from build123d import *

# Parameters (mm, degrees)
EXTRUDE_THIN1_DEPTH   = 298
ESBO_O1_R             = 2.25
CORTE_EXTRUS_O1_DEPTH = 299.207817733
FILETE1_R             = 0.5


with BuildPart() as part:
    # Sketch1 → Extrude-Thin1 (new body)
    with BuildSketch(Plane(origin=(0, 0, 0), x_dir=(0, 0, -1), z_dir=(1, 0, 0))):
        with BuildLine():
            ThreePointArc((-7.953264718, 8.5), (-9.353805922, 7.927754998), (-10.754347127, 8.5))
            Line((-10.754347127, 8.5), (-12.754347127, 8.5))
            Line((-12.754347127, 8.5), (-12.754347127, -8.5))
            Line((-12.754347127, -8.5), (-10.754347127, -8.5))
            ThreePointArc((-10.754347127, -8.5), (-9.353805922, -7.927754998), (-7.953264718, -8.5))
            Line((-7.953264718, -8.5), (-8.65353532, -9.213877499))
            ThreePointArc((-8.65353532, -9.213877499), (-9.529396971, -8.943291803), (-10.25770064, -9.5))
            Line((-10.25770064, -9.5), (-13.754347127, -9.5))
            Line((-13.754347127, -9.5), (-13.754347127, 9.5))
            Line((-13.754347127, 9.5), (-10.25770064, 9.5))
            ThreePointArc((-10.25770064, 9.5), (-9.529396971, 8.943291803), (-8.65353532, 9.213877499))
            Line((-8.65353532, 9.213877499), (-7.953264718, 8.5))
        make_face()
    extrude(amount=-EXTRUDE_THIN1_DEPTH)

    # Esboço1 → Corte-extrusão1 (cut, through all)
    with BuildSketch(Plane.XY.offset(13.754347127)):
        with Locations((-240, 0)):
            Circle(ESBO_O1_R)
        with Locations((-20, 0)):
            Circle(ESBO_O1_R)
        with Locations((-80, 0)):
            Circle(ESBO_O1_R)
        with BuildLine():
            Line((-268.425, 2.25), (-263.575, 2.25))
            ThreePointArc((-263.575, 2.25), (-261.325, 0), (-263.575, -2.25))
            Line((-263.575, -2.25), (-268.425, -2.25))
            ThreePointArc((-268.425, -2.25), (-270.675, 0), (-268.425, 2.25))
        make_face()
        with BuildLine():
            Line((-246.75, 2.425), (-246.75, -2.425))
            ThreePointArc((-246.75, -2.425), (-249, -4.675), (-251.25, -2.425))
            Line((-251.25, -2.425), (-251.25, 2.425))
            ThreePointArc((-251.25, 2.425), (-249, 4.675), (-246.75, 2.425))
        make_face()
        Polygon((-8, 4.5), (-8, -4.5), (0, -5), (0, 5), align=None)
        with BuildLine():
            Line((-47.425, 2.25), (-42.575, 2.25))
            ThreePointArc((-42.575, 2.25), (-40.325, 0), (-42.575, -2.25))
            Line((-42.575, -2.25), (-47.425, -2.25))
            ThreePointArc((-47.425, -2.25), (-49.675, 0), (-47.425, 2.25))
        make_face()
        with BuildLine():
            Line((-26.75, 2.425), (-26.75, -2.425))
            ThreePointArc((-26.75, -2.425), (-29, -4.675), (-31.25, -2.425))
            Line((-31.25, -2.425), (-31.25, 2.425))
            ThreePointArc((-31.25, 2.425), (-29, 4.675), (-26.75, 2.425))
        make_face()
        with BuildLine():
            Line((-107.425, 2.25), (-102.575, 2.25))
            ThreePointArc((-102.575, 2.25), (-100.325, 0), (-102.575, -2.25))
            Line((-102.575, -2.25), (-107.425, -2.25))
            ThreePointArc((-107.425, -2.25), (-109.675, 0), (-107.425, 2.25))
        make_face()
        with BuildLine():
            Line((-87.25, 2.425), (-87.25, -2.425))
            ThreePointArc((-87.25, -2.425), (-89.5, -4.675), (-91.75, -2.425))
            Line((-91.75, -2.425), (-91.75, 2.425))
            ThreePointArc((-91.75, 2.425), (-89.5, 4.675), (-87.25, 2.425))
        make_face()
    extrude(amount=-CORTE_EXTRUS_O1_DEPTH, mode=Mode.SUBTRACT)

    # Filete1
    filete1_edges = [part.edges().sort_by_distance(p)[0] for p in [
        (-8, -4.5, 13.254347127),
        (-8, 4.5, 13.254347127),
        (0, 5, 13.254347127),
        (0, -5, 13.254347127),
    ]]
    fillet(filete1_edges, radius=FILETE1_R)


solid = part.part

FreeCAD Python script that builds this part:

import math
import FreeCAD as App
import Part
import Sketcher
from FreeCAD import Vector
Q = App.Units.Quantity


def edges_at(feature, points):
    """Names of the edges that pass closest to the given points."""
    edges = feature.Shape.Edges
    near = lambda p: min(range(len(edges)), key=lambda i: edges[i].distToShape(Part.Vertex(*p))[0])
    return sorted({f"Edge{near(p) + 1}" for p in points})


def add_polygon(sketch, points):
    """Adds a closed chain of lines whose ends are joined by coincident constraints."""
    first, n = sketch.GeometryCount, len(points)
    for a, b in zip(points, points[1:] + points[:1]):
        sketch.addGeometry(Part.LineSegment(App.Vector(*a, 0), App.Vector(*b, 0)), False)
    for i in range(n):
        sketch.addConstraint(Sketcher.Constraint("Coincident", first + i, 2, first + (i + 1) % n, 1))

doc = App.newDocument("Part")
body = doc.addObject("PartDesign::Body", "Body")

# Sketch on YZ plane
sketch1 = body.newObject("Sketcher::SketchObject", "Sketch")
sketch1.AttachmentSupport = (doc.getObject("YZ_Plane"), [""])
sketch1.MapMode = "FlatFace"
sketch1.addGeometry([
    Part.ArcOfCircle(Part.Circle(Vector(9.927755, 9.353806, 0), Vector(0, 0, 1), 2), math.radians(135.551282), math.radians(224.448719)),  # 0
    Part.LineSegment(Vector(8.5, 7.953265, 0), Vector(9.213877, 8.653535, 0)),  # 1
    Part.ArcOfCircle(Part.Circle(Vector(9.927755, 9.353806, 0), Vector(0, 0, 1), 1), math.radians(115.325171), math.radians(224.448718)),  # 2
    Part.LineSegment(Vector(9.5, 10.257701, 0), Vector(9.5, 13.754347, 0)),  # 3
    Part.LineSegment(Vector(9.5, 13.754347, 0), Vector(-9.5, 13.754347, 0)),  # 4
    Part.LineSegment(Vector(-9.5, 13.754347, 0), Vector(-9.5, 10.257701, 0)),  # 5
    Part.ArcOfCircle(Part.Circle(Vector(-9.927755, 9.353806, 0), Vector(0, 0, 1), 1), math.radians(-44.448718), math.radians(64.674829)),  # 6
    Part.LineSegment(Vector(-9.213877, 8.653535, 0), Vector(-8.5, 7.953265, 0)),  # 7
    Part.ArcOfCircle(Part.Circle(Vector(-9.927755, 9.353806, 0), Vector(0, 0, 1), 2), math.radians(-44.448719), math.radians(44.448718)),  # 8
    Part.LineSegment(Vector(-8.5, 10.754347, 0), Vector(-8.5, 12.754347, 0)),  # 9
    Part.LineSegment(Vector(-8.5, 12.754347, 0), Vector(8.5, 12.754347, 0)),  # 10
    Part.LineSegment(Vector(8.5, 12.754347, 0), Vector(8.5, 10.754347, 0)),  # 11
], False)
sketch1.addConstraint([
    Sketcher.Constraint("Coincident", 0, 2, 1, 1),
    Sketcher.Constraint("Coincident", 1, 2, 2, 2),
    Sketcher.Constraint("Coincident", 2, 1, 3, 1),
    Sketcher.Constraint("Coincident", 3, 2, 4, 1),
    Sketcher.Constraint("Coincident", 4, 2, 5, 1),
    Sketcher.Constraint("Coincident", 5, 2, 6, 2),
    Sketcher.Constraint("Coincident", 6, 1, 7, 1),
    Sketcher.Constraint("Coincident", 7, 2, 8, 1),
    Sketcher.Constraint("Coincident", 8, 2, 9, 1),
    Sketcher.Constraint("Coincident", 9, 2, 10, 1),
    Sketcher.Constraint("Coincident", 10, 2, 11, 1),
    Sketcher.Constraint("Coincident", 11, 2, 0, 1),
    Sketcher.Constraint("Vertical", 3),
    Sketcher.Constraint("Horizontal", 4),
    Sketcher.Constraint("Vertical", 5),
    Sketcher.Constraint("Vertical", 9),
    Sketcher.Constraint("Horizontal", 10),
    Sketcher.Constraint("Vertical", 11),
    Sketcher.Constraint("Coincident", 2, 3, 0, 3),
    Sketcher.Constraint("Coincident", 8, 3, 6, 3),
    Sketcher.Constraint("Equal", 2, 6),
    Sketcher.Constraint("Equal", 0, 8),
    Sketcher.Constraint("Symmetric", 0, 3, 6, 3, -2),
    Sketcher.Constraint("Horizontal", 2, 1, 5, 2),
    Sketcher.Constraint("Horizontal", 1, 2, 6, 1),
    Sketcher.Constraint("Horizontal", 0, 2, 7, 2),
    Sketcher.Constraint("Horizontal", 8, 2, 11, 2),
    Sketcher.Constraint("Vertical", 7, 2, 8, 2),
    Sketcher.Constraint("Radius", 0, Q("2 mm")),
    Sketcher.Constraint("Radius", 2, Q("1 mm")),
    Sketcher.Constraint("DistanceX", 4, 2, 4, 1, Q("19 mm")),
    Sketcher.Constraint("DistanceX", 10, 1, 10, 2, Q("17 mm")),
    Sketcher.Constraint("DistanceY", 9, 1, 9, 2, Q("2 mm")),
    Sketcher.Constraint("DistanceY", 9, 2, 4, 2, Q("1 mm")),
    Sketcher.Constraint("DistanceY", -1, 1, 2, 1, Q("10.257701 mm")),
    Sketcher.Constraint("DistanceY", 3, 1, 3, 2, Q("3.496646 mm")),
    Sketcher.Constraint("DistanceY", 0, 2, 1, 2, Q("0.700271 mm")),
])
pad1 = body.newObject("PartDesign::Pad", "Pad")
pad1.Profile = sketch1
pad1.Length = 298
pad1.Reversed = True

# Sketch on XY plane
sketch2 = body.newObject("Sketcher::SketchObject", "Sketch001")
sketch2.AttachmentSupport = (doc.getObject("XY_Plane"), [""])
sketch2.MapMode = "FlatFace"
sketch2.AttachmentOffset = App.Placement(Vector(0, 0, 13.754347), App.Rotation())
sketch2.addGeometry(Part.Circle(Vector(-240, 0, 0), Vector(0, 0, 1), 2.25), False)  # 0
sketch2.addGeometry(Part.Circle(Vector(-20, 0, 0), Vector(0, 0, 1), 2.25), False)  # 1
sketch2.addGeometry(Part.Circle(Vector(-80, 0, 0), Vector(0, 0, 1), 2.25), False)  # 2
sketch2.addGeometry(Part.LineSegment(Vector(-263.575, 2.25, 0), Vector(-268.425, 2.25, 0)), False)  # 3
sketch2.addGeometry(Part.ArcOfCircle(Part.Circle(Vector(-268.425, 0, 0), Vector(0, 0, 1), 2.25), math.radians(90), math.radians(270)), False)  # 4
sketch2.addGeometry(Part.LineSegment(Vector(-268.425, -2.25, 0), Vector(-263.575, -2.25, 0)), False)  # 5
sketch2.addGeometry(Part.ArcOfCircle(Part.Circle(Vector(-263.575, 0, 0), Vector(0, 0, 1), 2.25), math.radians(-90), math.radians(90)), False)  # 6
sketch2.addGeometry(Part.LineSegment(Vector(-246.75, -2.425, 0), Vector(-246.75, 2.425, 0)), False)  # 7
sketch2.addGeometry(Part.ArcOfCircle(Part.Circle(Vector(-249, 2.425, 0), Vector(0, 0, 1), 2.25), math.radians(0), math.radians(180)), False)  # 8
sketch2.addGeometry(Part.LineSegment(Vector(-251.25, 2.425, 0), Vector(-251.25, -2.425, 0)), False)  # 9
sketch2.addGeometry(Part.ArcOfCircle(Part.Circle(Vector(-249, -2.425, 0), Vector(0, 0, 1), 2.25), math.radians(180), math.radians(360)), False)  # 10
add_polygon(sketch2, [(-8, 4.5), (-8, -4.5), (0, -5), (0, 5)])  # lines 11-14
sketch2.addGeometry(Part.LineSegment(Vector(-42.575, 2.25, 0), Vector(-47.425, 2.25, 0)), False)  # 15
sketch2.addGeometry(Part.ArcOfCircle(Part.Circle(Vector(-47.425, 0, 0), Vector(0, 0, 1), 2.25), math.radians(90), math.radians(270)), False)  # 16
sketch2.addGeometry(Part.LineSegment(Vector(-47.425, -2.25, 0), Vector(-42.575, -2.25, 0)), False)  # 17
sketch2.addGeometry(Part.ArcOfCircle(Part.Circle(Vector(-42.575, 0, 0), Vector(0, 0, 1), 2.25), math.radians(-90), math.radians(90)), False)  # 18
sketch2.addGeometry(Part.LineSegment(Vector(-26.75, -2.425, 0), Vector(-26.75, 2.425, 0)), False)  # 19
sketch2.addGeometry(Part.ArcOfCircle(Part.Circle(Vector(-29, 2.425, 0), Vector(0, 0, 1), 2.25), math.radians(0), math.radians(180)), False)  # 20
sketch2.addGeometry(Part.LineSegment(Vector(-31.25, 2.425, 0), Vector(-31.25, -2.425, 0)), False)  # 21
sketch2.addGeometry(Part.ArcOfCircle(Part.Circle(Vector(-29, -2.425, 0), Vector(0, 0, 1), 2.25), math.radians(180), math.radians(360)), False)  # 22
sketch2.addGeometry(Part.LineSegment(Vector(-102.575, 2.25, 0), Vector(-107.425, 2.25, 0)), False)  # 23
sketch2.addGeometry(Part.ArcOfCircle(Part.Circle(Vector(-107.425, 0, 0), Vector(0, 0, 1), 2.25), math.radians(90), math.radians(270)), False)  # 24
sketch2.addGeometry(Part.LineSegment(Vector(-107.425, -2.25, 0), Vector(-102.575, -2.25, 0)), False)  # 25
sketch2.addGeometry(Part.ArcOfCircle(Part.Circle(Vector(-102.575, 0, 0), Vector(0, 0, 1), 2.25), math.radians(-90), math.radians(90)), False)  # 26
sketch2.addGeometry(Part.LineSegment(Vector(-87.25, -2.425, 0), Vector(-87.25, 2.425, 0)), False)  # 27
sketch2.addGeometry(Part.ArcOfCircle(Part.Circle(Vector(-89.5, 2.425, 0), Vector(0, 0, 1), 2.25), math.radians(0), math.radians(180)), False)  # 28
sketch2.addGeometry(Part.LineSegment(Vector(-91.75, 2.425, 0), Vector(-91.75, -2.425, 0)), False)  # 29
sketch2.addGeometry(Part.ArcOfCircle(Part.Circle(Vector(-89.5, -2.425, 0), Vector(0, 0, 1), 2.25), math.radians(180), math.radians(360)), False)  # 30
sketch2.addConstraint([
    Sketcher.Constraint("Tangent", 3, 2, 4, 1),
    Sketcher.Constraint("Tangent", 4, 2, 5, 1),
    Sketcher.Constraint("Tangent", 5, 2, 6, 1),
    Sketcher.Constraint("Tangent", 6, 2, 3, 1),
    Sketcher.Constraint("Tangent", 7, 2, 8, 1),
    Sketcher.Constraint("Tangent", 8, 2, 9, 1),
    Sketcher.Constraint("Tangent", 9, 2, 10, 1),
    Sketcher.Constraint("Tangent", 10, 2, 7, 1),
    Sketcher.Constraint("Tangent", 15, 2, 16, 1),
    Sketcher.Constraint("Tangent", 16, 2, 17, 1),
    Sketcher.Constraint("Tangent", 17, 2, 18, 1),
    Sketcher.Constraint("Tangent", 18, 2, 15, 1),
    Sketcher.Constraint("Tangent", 19, 2, 20, 1),
    Sketcher.Constraint("Tangent", 20, 2, 21, 1),
    Sketcher.Constraint("Tangent", 21, 2, 22, 1),
    Sketcher.Constraint("Tangent", 22, 2, 19, 1),
    Sketcher.Constraint("Tangent", 23, 2, 24, 1),
    Sketcher.Constraint("Tangent", 24, 2, 25, 1),
    Sketcher.Constraint("Tangent", 25, 2, 26, 1),
    Sketcher.Constraint("Tangent", 26, 2, 23, 1),
    Sketcher.Constraint("Tangent", 27, 2, 28, 1),
    Sketcher.Constraint("Tangent", 28, 2, 29, 1),
    Sketcher.Constraint("Tangent", 29, 2, 30, 1),
    Sketcher.Constraint("Tangent", 30, 2, 27, 1),
    Sketcher.Constraint("Horizontal", 3),
    Sketcher.Constraint("Horizontal", 5),
    Sketcher.Constraint("Vertical", 7),
    Sketcher.Constraint("Vertical", 9),
    Sketcher.Constraint("Vertical", 11),
    Sketcher.Constraint("Vertical", 13),
    Sketcher.Constraint("Horizontal", 15),
    Sketcher.Constraint("Horizontal", 17),
    Sketcher.Constraint("Vertical", 19),
    Sketcher.Constraint("Vertical", 21),
    Sketcher.Constraint("Horizontal", 23),
    Sketcher.Constraint("Horizontal", 25),
    Sketcher.Constraint("Vertical", 27),
    Sketcher.Constraint("Vertical", 29),
    Sketcher.Constraint("Equal", 0, 1),
    Sketcher.Constraint("Equal", 1, 2),
    Sketcher.Constraint("Equal", 2, 4),
    Sketcher.Constraint("Equal", 6, 8),
    Sketcher.Constraint("Equal", 10, 16),
    Sketcher.Constraint("Equal", 18, 20),
    Sketcher.Constraint("Equal", 22, 24),
    Sketcher.Constraint("Equal", 26, 28),
    Sketcher.Constraint("Symmetric", 12, 2, 13, 2, -1, 1),
    Sketcher.Constraint("PointOnObject", 0, 3, -1),
    Sketcher.Constraint("PointOnObject", 1, 3, -1),
    Sketcher.Constraint("PointOnObject", 2, 3, -1),
    Sketcher.Constraint("PointOnObject", 4, 3, -1),
    Sketcher.Constraint("PointOnObject", 16, 3, -1),
    Sketcher.Constraint("PointOnObject", 24, 3, -1),
    Sketcher.Constraint("Horizontal", 8, 3, 20, 3),
    Sketcher.Constraint("Horizontal", 10, 3, 22, 3),
    Sketcher.Constraint("Horizontal", 20, 3, 28, 3),
    Sketcher.Constraint("Horizontal", 22, 3, 30, 3),
    Sketcher.Constraint("Equal", 5, 15),
    Sketcher.Constraint("Equal", 17, 23),
    Sketcher.Constraint("Equal", 25, 7),
    Sketcher.Constraint("Equal", 12, 14),
    Sketcher.Constraint("Diameter", 0, Q("4.5 mm")),
    Sketcher.Constraint("DistanceY", 11, 2, 11, 1, Q("9 mm")),
    Sketcher.Constraint("DistanceY", 13, 1, 13, 2, Q("10 mm")),
    Sketcher.Constraint("DistanceX", 0, 3, -1, 1, Q("240 mm")),
    Sketcher.Constraint("DistanceX", 1, 3, -1, 1, Q("20 mm")),
    Sketcher.Constraint("DistanceX", 2, 3, -1, 1, Q("80 mm")),
    Sketcher.Constraint("DistanceX", 8, 3, -1, 1, Q("249 mm")),
    Sketcher.Constraint("DistanceX", 20, 3, -1, 1, Q("29 mm")),
    Sketcher.Constraint("DistanceX", 11, 2, -1, 1, Q("8 mm")),
    Sketcher.Constraint("DistanceX", 24, 3, 16, 3, Q("60 mm")),
    Sketcher.Constraint("DistanceX", 3, 2, 3, 1, Q("4.85 mm")),
    Sketcher.Constraint("DistanceX", 28, 3, -1, 1, Q("89.5 mm")),
    Sketcher.Constraint("DistanceX", 4, 3, -1, 1, Q("268.425 mm")),
    Sketcher.Constraint("DistanceY", -1, 1, 8, 3, Q("2.425 mm")),
    Sketcher.Constraint("DistanceX", 16, 3, -1, 1, Q("47.425 mm")),
])
pocket1 = body.newObject("PartDesign::Pocket", "Pocket")
pocket1.Profile = sketch2
pocket1.Type = "ThroughAll"
doc.recompute()

fillet = body.newObject("PartDesign::Fillet", "Fillet")
fillet.Base = (pocket1, edges_at(pocket1, [
    (-8, -4.5, 13.254),
    (-8, 4.5, 13.254),
    (0, 5, 13.254),
    (0, -5, 13.254),
]))
fillet.Radius = 0.5

doc.recompute()
